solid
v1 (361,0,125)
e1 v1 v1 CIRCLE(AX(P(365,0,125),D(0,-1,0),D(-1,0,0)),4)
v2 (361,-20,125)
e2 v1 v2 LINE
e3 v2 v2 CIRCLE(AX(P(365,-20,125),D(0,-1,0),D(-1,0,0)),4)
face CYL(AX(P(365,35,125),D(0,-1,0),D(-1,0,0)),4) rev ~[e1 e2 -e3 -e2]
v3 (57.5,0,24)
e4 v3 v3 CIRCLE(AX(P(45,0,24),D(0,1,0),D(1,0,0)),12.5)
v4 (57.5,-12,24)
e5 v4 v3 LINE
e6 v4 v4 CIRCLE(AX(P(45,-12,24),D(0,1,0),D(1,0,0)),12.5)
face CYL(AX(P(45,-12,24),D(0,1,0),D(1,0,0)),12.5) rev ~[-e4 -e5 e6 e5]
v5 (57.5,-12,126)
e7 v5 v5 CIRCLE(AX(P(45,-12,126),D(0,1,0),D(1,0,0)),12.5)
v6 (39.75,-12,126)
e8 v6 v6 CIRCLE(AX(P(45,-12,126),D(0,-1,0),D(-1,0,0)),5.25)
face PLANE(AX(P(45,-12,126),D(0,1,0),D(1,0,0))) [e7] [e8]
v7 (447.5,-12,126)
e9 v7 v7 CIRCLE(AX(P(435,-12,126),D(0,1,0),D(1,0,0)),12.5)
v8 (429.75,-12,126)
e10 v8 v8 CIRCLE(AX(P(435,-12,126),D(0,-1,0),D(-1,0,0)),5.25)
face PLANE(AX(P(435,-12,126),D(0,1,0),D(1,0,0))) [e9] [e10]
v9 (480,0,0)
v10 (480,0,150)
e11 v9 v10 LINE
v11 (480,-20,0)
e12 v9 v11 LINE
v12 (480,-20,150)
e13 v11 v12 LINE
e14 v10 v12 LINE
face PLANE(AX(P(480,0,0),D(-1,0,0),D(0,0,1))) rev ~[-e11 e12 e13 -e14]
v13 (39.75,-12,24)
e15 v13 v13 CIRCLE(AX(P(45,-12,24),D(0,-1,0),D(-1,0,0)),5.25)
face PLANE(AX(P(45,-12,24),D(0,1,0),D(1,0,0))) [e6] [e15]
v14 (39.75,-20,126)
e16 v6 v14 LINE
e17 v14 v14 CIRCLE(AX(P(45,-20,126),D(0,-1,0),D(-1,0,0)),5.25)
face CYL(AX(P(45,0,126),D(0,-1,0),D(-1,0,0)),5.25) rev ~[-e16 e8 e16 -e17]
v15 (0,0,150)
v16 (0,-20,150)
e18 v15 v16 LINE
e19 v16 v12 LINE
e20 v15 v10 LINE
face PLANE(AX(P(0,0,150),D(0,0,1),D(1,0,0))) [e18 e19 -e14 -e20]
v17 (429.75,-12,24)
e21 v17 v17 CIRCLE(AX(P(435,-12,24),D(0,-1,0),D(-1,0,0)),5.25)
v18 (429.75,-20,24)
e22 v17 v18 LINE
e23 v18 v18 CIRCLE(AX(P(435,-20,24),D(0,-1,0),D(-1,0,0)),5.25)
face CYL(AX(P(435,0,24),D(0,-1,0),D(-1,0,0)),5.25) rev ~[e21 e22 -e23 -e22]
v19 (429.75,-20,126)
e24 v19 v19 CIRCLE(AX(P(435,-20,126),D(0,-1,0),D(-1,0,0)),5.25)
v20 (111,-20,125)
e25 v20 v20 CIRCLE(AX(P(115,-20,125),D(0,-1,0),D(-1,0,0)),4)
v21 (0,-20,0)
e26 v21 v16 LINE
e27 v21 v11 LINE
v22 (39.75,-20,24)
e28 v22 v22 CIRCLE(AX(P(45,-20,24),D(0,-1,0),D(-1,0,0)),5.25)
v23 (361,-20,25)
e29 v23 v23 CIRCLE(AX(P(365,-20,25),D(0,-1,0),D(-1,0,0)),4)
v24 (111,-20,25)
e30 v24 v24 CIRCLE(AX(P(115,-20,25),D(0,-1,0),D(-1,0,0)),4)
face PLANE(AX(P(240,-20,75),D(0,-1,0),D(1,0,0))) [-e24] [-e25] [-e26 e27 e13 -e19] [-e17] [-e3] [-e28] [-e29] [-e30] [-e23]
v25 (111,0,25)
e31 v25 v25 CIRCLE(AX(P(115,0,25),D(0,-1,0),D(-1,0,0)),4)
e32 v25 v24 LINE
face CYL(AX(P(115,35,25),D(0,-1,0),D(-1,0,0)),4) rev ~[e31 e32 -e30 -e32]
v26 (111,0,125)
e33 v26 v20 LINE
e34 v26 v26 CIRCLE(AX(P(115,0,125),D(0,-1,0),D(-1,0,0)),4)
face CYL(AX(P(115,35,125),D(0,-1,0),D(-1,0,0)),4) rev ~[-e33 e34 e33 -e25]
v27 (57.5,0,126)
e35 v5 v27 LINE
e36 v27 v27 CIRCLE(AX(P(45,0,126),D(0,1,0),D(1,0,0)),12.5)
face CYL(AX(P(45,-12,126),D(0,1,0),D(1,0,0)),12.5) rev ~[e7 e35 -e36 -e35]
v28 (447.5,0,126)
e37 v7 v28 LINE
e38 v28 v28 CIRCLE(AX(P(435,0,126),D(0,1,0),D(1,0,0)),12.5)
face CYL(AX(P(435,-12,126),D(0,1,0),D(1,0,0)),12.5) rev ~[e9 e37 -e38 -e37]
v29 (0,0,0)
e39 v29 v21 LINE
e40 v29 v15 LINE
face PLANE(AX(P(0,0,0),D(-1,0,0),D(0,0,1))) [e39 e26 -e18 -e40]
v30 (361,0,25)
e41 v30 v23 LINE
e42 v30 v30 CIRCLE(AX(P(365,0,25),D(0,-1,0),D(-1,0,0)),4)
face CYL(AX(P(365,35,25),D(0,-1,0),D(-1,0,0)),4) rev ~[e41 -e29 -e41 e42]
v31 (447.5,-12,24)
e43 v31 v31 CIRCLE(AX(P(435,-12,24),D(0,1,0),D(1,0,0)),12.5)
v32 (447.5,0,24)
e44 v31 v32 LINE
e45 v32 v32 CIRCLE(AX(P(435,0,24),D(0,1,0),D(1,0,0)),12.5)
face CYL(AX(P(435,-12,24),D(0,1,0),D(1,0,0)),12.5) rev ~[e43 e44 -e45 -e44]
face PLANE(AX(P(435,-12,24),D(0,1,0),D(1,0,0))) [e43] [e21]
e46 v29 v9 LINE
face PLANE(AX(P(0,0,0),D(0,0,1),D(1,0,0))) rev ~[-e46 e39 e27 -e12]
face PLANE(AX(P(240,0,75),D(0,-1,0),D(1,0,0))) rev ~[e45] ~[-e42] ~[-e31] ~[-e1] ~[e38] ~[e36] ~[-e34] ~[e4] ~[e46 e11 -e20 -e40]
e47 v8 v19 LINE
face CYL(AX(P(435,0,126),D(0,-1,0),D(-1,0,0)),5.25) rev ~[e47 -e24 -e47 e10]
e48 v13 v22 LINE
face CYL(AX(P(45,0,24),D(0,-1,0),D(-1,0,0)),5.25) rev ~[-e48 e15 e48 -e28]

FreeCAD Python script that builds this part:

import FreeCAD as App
import Part
import Sketcher

doc = App.newDocument("Part")
body = doc.addObject("PartDesign::Body", "Body")

sketch1 = body.newObject("Sketcher::SketchObject", "Sketch")
sketch1.AttachmentSupport = (doc.getObject("XZ_Plane"), [""])
sketch1.MapMode = "FlatFace"
sketch1.addGeometry(Part.LineSegment(App.Vector(0, 150, 0), App.Vector(0, 0, 0)), False)
sketch1.addGeometry(Part.LineSegment(App.Vector(0, 0, 0), App.Vector(480, 0, 0)), False)
sketch1.addGeometry(Part.LineSegment(App.Vector(480, 0, 0), App.Vector(480, 150, 0)), False)
sketch1.addGeometry(Part.LineSegment(App.Vector(480, 150, 0), App.Vector(0, 150, 0)), False)
sketch1.addConstraint(Sketcher.Constraint("Coincident", 0, 2, 1, 1))
sketch1.addConstraint(Sketcher.Constraint("Coincident", 1, 2, 2, 1))
sketch1.addConstraint(Sketcher.Constraint("Coincident", 2, 2, 3, 1))
sketch1.addConstraint(Sketcher.Constraint("Coincident", 3, 2, 0, 1))
sketch1.addConstraint(Sketcher.Constraint("Vertical", 0))
sketch1.addConstraint(Sketcher.Constraint("Horizontal", 1))
sketch1.addConstraint(Sketcher.Constraint("Vertical", 2))
sketch1.addConstraint(Sketcher.Constraint("Horizontal", 3))
sketch1.addConstraint(Sketcher.Constraint("Coincident", 0, 2, -1, 1))
sketch1.addConstraint(Sketcher.Constraint("DistanceX", 1, 1, 1, 2, 480.0))
sketch1.addConstraint(Sketcher.Constraint("DistanceY", 0, 2, 0, 1, 150.0))
pad1 = body.newObject("PartDesign::Pad", "Pad")
pad1.Profile = sketch1
pad1.Length = 20

sketch2 = body.newObject("Sketcher::SketchObject", "Sketch001")
sketch2.AttachmentSupport = (doc.getObject("XZ_Plane"), [""])
sketch2.MapMode = "FlatFace"
sketch2.addGeometry(Part.Circle(App.Vector(435, 126, 0), App.Vector(0, 0, 1), 5), False)
sketch2.addGeometry(Part.Circle(App.Vector(435, 24, 0), App.Vector(0, 0, 1), 5), False)
sketch2.addGeometry(Part.Circle(App.Vector(45, 126, 0), App.Vector(0, 0, 1), 5), False)
sketch2.addGeometry(Part.Circle(App.Vector(45, 24, 0), App.Vector(0, 0, 1), 5), False)
sketch2.addConstraint(Sketcher.Constraint("Equal", 0, 1))
sketch2.addConstraint(Sketcher.Constraint("Equal", 1, 2))
sketch2.addConstraint(Sketcher.Constraint("Equal", 2, 3))
sketch2.addConstraint(Sketcher.Constraint("Horizontal", 0, 3, 2, 3))
sketch2.addConstraint(Sketcher.Constraint("Horizontal", 1, 3, 3, 3))
sketch2.addConstraint(Sketcher.Constraint("Vertical", 0, 3, 1, 3))
sketch2.addConstraint(Sketcher.Constraint("Vertical", 2, 3, 3, 3))
sketch2.addConstraint(Sketcher.Constraint("Diameter", 0, 10.5))
sketch2.addConstraint(Sketcher.Constraint("DistanceX", -1, 1, 0, 3, 435.0))
sketch2.addConstraint(Sketcher.Constraint("DistanceY", -1, 1, 0, 3, 126.0))
sketch2.addConstraint(Sketcher.Constraint("DistanceY", -1, 1, 1, 3, 24.0))
sketch2.addConstraint(Sketcher.Constraint("DistanceX", -1, 1, 2, 3, 45.0))
doc.recompute()
hole = body.newObject("PartDesign::Hole", "Hole")
hole.Profile = sketch2
hole.ThreadType = "None"
hole.Diameter = 10.5
hole.DepthType = "Dimension"
hole.Depth = 35
hole.DrillPoint = "Angled"
hole.DrillPointAngle = 118
hole.HoleCutType = "Counterbore"
hole.HoleCutDiameter = 25
hole.HoleCutDepth = 12
hole.Reversed = True

sketch3 = body.newObject("Sketcher::SketchObject", "Sketch002")
sketch3.AttachmentSupport = (doc.getObject("XZ_Plane"), [""])
sketch3.MapMode = "FlatFace"
sketch3.addGeometry(Part.Circle(App.Vector(115, 125, 0), App.Vector(0, 0, 1), 4), False)
sketch3.addGeometry(Part.Circle(App.Vector(115, 25, 0), App.Vector(0, 0, 1), 4), False)
sketch3.addGeometry(Part.Circle(App.Vector(365, 25, 0), App.Vector(0, 0, 1), 4), False)
sketch3.addGeometry(Part.Circle(App.Vector(365, 125, 0), App.Vector(0, 0, 1), 4), False)
sketch3.addConstraint(Sketcher.Constraint("Equal", 0, 1))
sketch3.addConstraint(Sketcher.Constraint("Equal", 1, 2))
sketch3.addConstraint(Sketcher.Constraint("Equal", 2, 3))
sketch3.addConstraint(Sketcher.Constraint("Horizontal", 1, 3, 2, 3))
sketch3.addConstraint(Sketcher.Constraint("Horizontal", 0, 3, 3, 3))
sketch3.addConstraint(Sketcher.Constraint("Vertical", 0, 3, 1, 3))
sketch3.addConstraint(Sketcher.Constraint("Vertical", 2, 3, 3, 3))
sketch3.addConstraint(Sketcher.Constraint("Diameter", 0, 8.0))
sketch3.addConstraint(Sketcher.Constraint("DistanceX", -1, 1, 0, 3, 115.0))
sketch3.addConstraint(Sketcher.Constraint("DistanceY", -1, 1, 0, 3, 125.0))
sketch3.addConstraint(Sketcher.Constraint("DistanceY", -1, 1, 1, 3, 25.0))
sketch3.addConstraint(Sketcher.Constraint("DistanceX", -1, 1, 2, 3, 365.0))
doc.recompute()
hole2 = body.newObject("PartDesign::Hole", "Hole001")
hole2.Profile = sketch3
hole2.ThreadType = "None"
hole2.Diameter = 8
hole2.DepthType = "Dimension"
hole2.Depth = 35
hole2.DrillPoint = "Angled"
hole2.DrillPointAngle = 118
hole2.Reversed = True

doc.recompute()
